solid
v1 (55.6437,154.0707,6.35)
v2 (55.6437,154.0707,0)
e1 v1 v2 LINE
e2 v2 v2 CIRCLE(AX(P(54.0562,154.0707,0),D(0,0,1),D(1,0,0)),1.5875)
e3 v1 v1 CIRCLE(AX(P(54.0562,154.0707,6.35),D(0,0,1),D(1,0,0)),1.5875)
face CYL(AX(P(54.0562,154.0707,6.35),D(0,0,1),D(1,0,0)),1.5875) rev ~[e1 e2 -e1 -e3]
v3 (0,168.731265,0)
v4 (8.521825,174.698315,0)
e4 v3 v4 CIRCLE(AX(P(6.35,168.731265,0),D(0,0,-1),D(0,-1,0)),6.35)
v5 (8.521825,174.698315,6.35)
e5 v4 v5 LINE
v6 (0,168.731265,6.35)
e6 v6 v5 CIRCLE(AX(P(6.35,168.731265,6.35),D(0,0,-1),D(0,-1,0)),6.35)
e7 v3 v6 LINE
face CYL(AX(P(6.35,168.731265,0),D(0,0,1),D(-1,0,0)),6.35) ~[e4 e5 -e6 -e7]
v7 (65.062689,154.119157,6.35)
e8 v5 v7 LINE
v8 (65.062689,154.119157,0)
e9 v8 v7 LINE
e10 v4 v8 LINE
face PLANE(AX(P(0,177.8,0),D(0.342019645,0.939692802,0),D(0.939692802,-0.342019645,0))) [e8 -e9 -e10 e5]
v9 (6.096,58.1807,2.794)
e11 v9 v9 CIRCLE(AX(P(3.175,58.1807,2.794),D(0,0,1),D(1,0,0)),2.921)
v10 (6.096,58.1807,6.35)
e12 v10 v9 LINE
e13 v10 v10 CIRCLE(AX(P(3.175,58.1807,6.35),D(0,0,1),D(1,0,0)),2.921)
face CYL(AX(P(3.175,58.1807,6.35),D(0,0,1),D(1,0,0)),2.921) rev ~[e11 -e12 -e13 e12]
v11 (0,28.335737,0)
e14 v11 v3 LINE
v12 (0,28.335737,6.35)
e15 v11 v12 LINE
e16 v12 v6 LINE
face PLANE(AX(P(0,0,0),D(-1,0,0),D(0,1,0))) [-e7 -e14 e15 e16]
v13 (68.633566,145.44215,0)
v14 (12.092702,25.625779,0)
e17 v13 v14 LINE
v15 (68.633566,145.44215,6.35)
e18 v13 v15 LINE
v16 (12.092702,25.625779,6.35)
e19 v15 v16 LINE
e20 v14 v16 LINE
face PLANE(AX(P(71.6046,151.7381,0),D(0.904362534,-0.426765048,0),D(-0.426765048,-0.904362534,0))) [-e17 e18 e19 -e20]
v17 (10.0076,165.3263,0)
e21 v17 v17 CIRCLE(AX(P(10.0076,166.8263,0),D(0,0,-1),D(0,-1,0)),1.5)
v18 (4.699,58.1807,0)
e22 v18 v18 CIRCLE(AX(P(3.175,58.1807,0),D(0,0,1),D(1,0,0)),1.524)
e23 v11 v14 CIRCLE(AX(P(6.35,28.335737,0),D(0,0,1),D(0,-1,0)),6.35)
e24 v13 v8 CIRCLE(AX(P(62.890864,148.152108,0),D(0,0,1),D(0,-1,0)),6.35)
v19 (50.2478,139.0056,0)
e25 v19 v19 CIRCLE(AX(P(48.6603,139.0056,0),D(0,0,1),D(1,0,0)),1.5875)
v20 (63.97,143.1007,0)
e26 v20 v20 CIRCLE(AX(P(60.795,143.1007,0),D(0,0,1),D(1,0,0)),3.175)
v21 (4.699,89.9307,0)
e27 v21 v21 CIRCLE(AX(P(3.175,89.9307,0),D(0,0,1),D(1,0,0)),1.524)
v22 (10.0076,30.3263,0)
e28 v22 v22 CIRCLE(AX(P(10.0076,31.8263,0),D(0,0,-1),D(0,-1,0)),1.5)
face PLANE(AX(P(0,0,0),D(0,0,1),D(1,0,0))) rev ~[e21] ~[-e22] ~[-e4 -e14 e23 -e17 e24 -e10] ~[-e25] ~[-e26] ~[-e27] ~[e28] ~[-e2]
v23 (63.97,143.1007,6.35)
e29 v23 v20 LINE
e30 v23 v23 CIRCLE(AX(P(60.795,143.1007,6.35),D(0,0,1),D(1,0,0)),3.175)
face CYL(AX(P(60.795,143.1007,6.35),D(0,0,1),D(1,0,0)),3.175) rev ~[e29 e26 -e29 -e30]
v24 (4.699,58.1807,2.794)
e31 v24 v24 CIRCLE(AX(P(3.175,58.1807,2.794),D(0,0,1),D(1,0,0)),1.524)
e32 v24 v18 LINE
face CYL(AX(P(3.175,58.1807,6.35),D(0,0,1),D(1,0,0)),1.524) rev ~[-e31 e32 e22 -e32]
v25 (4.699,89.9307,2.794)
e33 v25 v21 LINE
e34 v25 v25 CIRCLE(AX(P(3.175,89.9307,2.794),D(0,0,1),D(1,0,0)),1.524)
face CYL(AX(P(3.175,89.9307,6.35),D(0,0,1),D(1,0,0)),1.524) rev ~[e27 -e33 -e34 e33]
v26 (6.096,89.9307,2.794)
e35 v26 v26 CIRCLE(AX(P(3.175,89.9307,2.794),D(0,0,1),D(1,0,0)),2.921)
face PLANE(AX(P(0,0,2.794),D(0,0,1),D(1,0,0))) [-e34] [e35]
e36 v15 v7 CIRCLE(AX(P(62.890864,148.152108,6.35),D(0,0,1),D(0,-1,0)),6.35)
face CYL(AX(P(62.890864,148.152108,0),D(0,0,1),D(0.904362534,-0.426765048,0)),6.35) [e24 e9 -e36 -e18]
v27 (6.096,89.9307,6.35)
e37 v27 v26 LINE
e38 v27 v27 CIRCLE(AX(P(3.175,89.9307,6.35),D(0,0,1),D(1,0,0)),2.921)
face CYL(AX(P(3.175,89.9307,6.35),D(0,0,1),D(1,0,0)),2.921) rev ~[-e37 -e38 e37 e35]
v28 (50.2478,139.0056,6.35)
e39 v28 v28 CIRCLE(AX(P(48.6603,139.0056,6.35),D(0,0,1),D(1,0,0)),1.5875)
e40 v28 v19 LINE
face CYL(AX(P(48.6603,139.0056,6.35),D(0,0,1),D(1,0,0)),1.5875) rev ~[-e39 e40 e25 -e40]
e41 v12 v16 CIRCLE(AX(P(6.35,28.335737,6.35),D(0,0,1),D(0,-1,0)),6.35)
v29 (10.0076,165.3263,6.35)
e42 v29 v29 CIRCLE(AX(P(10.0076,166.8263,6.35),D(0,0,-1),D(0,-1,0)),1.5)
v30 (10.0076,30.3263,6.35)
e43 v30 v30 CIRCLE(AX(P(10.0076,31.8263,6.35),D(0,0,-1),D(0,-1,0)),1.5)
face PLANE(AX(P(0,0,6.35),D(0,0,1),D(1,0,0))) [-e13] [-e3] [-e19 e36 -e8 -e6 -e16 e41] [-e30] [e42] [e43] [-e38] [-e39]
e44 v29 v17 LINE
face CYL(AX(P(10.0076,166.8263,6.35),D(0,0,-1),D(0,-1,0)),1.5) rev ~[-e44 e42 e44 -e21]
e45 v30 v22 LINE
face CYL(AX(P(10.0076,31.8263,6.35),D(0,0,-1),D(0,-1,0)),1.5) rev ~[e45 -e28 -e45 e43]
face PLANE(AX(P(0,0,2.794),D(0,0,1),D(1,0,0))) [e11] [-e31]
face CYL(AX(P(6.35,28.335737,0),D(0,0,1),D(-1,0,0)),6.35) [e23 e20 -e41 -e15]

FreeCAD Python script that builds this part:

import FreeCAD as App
import Part
import Sketcher
Q = App.Units.Quantity


def edges_at(feature, points):
    """Names of the edges that pass closest to the given points."""
    edges = feature.Shape.Edges
    near = lambda p: min(range(len(edges)), key=lambda i: edges[i].distToShape(Part.Vertex(*p))[0])
    return sorted({f"Edge{near(p) + 1}" for p in points})

doc = App.newDocument("Part")
body = doc.addObject("PartDesign::Body", "Body")

sketch1 = body.newObject("Sketcher::SketchObject", "Sketch")
sketch1.AttachmentSupport = (doc.getObject("XY_Plane"), [""])
sketch1.MapMode = "FlatFace"
sketch1.addGeometry(Part.LineSegment(App.Vector(0, 178, 0), App.Vector(0, 0, 0)), False)
sketch1.addGeometry(Part.LineSegment(App.Vector(0, 0, 0), App.Vector(72, 152, 0)), False)
sketch1.addGeometry(Part.LineSegment(App.Vector(72, 152, 0), App.Vector(0, 178, 0)), False)
sketch1.addConstraint(Sketcher.Constraint("Coincident", 0, 2, 1, 1))
sketch1.addConstraint(Sketcher.Constraint("Coincident", 1, 2, 2, 1))
sketch1.addConstraint(Sketcher.Constraint("Coincident", 2, 2, 0, 1))
sketch1.addConstraint(Sketcher.Constraint("Vertical", 0))
sketch1.addConstraint(Sketcher.Constraint("Coincident", 0, 2, -1, 1))
sketch1.addConstraint(Sketcher.Constraint("DistanceY", 0, 2, 0, 1, Q("7 in")))
sketch1.addConstraint(Sketcher.Constraint("Distance", 2, Q("3 in")))
sketch1.addConstraint(Sketcher.Constraint("Angle", 2, Q("160 deg")))
pad1 = body.newObject("PartDesign::Pad", "Pad")
pad1.Profile = sketch1
pad1.Length = Q("0.25 in")
doc.recompute()

fillet = body.newObject("PartDesign::Fillet", "Fillet")
fillet.Base = (pad1, edges_at(pad1, [(0, 177.8, 3.175), (0, 0, 3.175)]))
fillet.Radius = Q("0.25 in")
doc.recompute()

fillet2 = body.newObject("PartDesign::Fillet", "Fillet001")
fillet2.Base = (fillet, edges_at(fillet, [(71.605, 151.738, 3.175)]))
fillet2.Radius = Q("0.25 in")

sketch2 = body.newObject("Sketcher::SketchObject", "Sketch001")
sketch2.AttachmentSupport = (doc.getObject("XY_Plane"), [""])
sketch2.MapMode = "FlatFace"
sketch2.AttachmentOffset = App.Placement(App.Vector(0, 0, 0.25 * 25.4), App.Rotation())
sketch2.addGeometry(Part.Circle(App.Vector(3.2, 58.2, 0), App.Vector(0, 0, 1), 1.5), False)
sketch2.addGeometry(Part.Circle(App.Vector(3.2, 89.9, 0), App.Vector(0, 0, 1), 1.5), False)
sketch2.addConstraint(Sketcher.Constraint("Equal", 0, 1))
sketch2.addConstraint(Sketcher.Constraint("Vertical", 0, 3, 1, 3))
sketch2.addConstraint(Sketcher.Constraint("Diameter", 0, Q("0.12 in")))
sketch2.addConstraint(Sketcher.Constraint("DistanceY", 0, 3, 1, 3, Q("1.25 in")))
sketch2.addConstraint(Sketcher.Constraint("DistanceX", -1, 1, 0, 3, Q("0.125 in")))
sketch2.addConstraint(Sketcher.Constraint("DistanceY", -1, 1, 0, 3, 58.1807))
pocket1 = body.newObject("PartDesign::Pocket", "Pocket")
pocket1.Profile = sketch2
pocket1.Type = "ThroughAll"

sketch3 = body.newObject("Sketcher::SketchObject", "Sketch002")
sketch3.AttachmentSupport = (doc.getObject("XY_Plane"), [""])
sketch3.MapMode = "FlatFace"
sketch3.AttachmentOffset = App.Placement(App.Vector(0, 0, 0.25 * 25.4), App.Rotation())
sketch3.addGeometry(Part.Circle(App.Vector(3.2, 58.2, 0), App.Vector(0, 0, 1), 2.9), False)
sketch3.addGeometry(Part.Circle(App.Vector(3.2, 58.2, 0), App.Vector(0, 0, 1), 1.5), False)
sketch3.addGeometry(Part.Circle(App.Vector(3.2, 89.9, 0), App.Vector(0, 0, 1), 2.9), False)
sketch3.addGeometry(Part.Circle(App.Vector(3.2, 89.9, 0), App.Vector(0, 0, 1), 1.5), False)
sketch3.addConstraint(Sketcher.Constraint("Coincident", 1, 3, 0, 3))
sketch3.addConstraint(Sketcher.Constraint("Coincident", 3, 3, 2, 3))
sketch3.addConstraint(Sketcher.Constraint("Equal", 0, 2))
sketch3.addConstraint(Sketcher.Constraint("Equal", 1, 3))
sketch3.addConstraint(Sketcher.Constraint("Vertical", 1, 3, 2, 3))
sketch3.addConstraint(Sketcher.Constraint("Diameter", 0, Q("0.23 in")))
sketch3.addConstraint(Sketcher.Constraint("Diameter", 1, Q("0.12 in")))
sketch3.addConstraint(Sketcher.Constraint("DistanceY", 0, 3, 2, 3, Q("1.25 in")))
sketch3.addConstraint(Sketcher.Constraint("DistanceX", -1, 1, 0, 3, Q("0.125 in")))
sketch3.addConstraint(Sketcher.Constraint("DistanceY", -1, 1, 0, 3, 58.1807))
pocket2 = body.newObject("PartDesign::Pocket", "Pocket001")
pocket2.Profile = sketch3
pocket2.Length = Q("0.14 in")

sketch4 = body.newObject("Sketcher::SketchObject", "Sketch003")
sketch4.AttachmentSupport = (doc.getObject("XY_Plane"), [""])
sketch4.MapMode = "FlatFace"
sketch4.AttachmentOffset = App.Placement(App.Vector(0, 0, 0.25 * 25.4), App.Rotation())
sketch4.addGeometry(Part.Circle(App.Vector(60.8, 143.1, 0), App.Vector(0, 0, 1), 3.2), False)
sketch4.addConstraint(Sketcher.Constraint("Diameter", 0, Q("0.25 in")))
sketch4.addConstraint(Sketcher.Constraint("DistanceX", -1, 1, 0, 3, Q("2.3935 in")))
sketch4.addConstraint(Sketcher.Constraint("DistanceY", -1, 1, 0, 3, 143.1007))
pocket3 = body.newObject("PartDesign::Pocket", "Pocket002")
pocket3.Profile = sketch4
pocket3.Type = "ThroughAll"

sketch5 = body.newObject("Sketcher::SketchObject", "Sketch004")
sketch5.AttachmentSupport = (doc.getObject("XY_Plane"), [""])
sketch5.MapMode = "FlatFace"
sketch5.AttachmentOffset = App.Placement(App.Vector(0, 0, 0.25 * 25.4), App.Rotation())
sketch5.addGeometry(Part.Circle(App.Vector(10, 31.8, 0), App.Vector(0, 0, 1), 1.5), False)
sketch5.addGeometry(Part.Circle(App.Vector(10, 166.8, 0), App.Vector(0, 0, 1), 1.5), False)
sketch5.addConstraint(Sketcher.Constraint("Equal", 0, 1))
sketch5.addConstraint(Sketcher.Constraint("Vertical", 0, 3, 1, 3))
sketch5.addConstraint(Sketcher.Constraint("Diameter", 0, Q("0.1181 in")))
sketch5.addConstraint(Sketcher.Constraint("DistanceX", -1, 1, 0, 3, Q("0.394 in")))
sketch5.addConstraint(Sketcher.Constraint("DistanceY", -1, 1, 0, 3, Q("1.253 in")))
sketch5.addConstraint(Sketcher.Constraint("DistanceY", -1, 1, 1, 3, 166.8263))
doc.recompute()
hole = body.newObject("PartDesign::Hole", "Hole")
hole.Profile = sketch5
hole.ThreadType = "None"
hole.Diameter = Q("0.1181102 in")
hole.DepthType = "ThroughAll"

sketch6 = body.newObject("Sketcher::SketchObject", "Sketch005")
sketch6.AttachmentSupport = (doc.getObject("XY_Plane"), [""])
sketch6.MapMode = "FlatFace"
sketch6.AttachmentOffset = App.Placement(App.Vector(0, 0, 0.25 * 25.4), App.Rotation())
sketch6.addGeometry(Part.Circle(App.Vector(48.7, 139, 0), App.Vector(0, 0, 1), 1.6), False)
sketch6.addGeometry(Part.Circle(App.Vector(54.1, 154.1, 0), App.Vector(0, 0, 1), 1.6), False)
sketch6.addConstraint(Sketcher.Constraint("Equal", 0, 1))
sketch6.addConstraint(Sketcher.Constraint("Diameter", 0, Q("0.125 in")))
sketch6.addConstraint(Sketcher.Constraint("DistanceX", -1, 1, 1, 3, Q("2.1282 in")))
sketch6.addConstraint(Sketcher.Constraint("DistanceX", -1, 1, 0, 3, 48.6603))
sketch6.addConstraint(Sketcher.Constraint("DistanceY", -1, 1, 0, 3, 139.0056))
sketch6.addConstraint(Sketcher.Constraint("DistanceY", -1, 1, 1, 3, 154.0707))
pocket4 = body.newObject("PartDesign::Pocket", "Pocket003")
pocket4.Profile = sketch6
pocket4.Type = "ThroughAll"

doc.recompute()
